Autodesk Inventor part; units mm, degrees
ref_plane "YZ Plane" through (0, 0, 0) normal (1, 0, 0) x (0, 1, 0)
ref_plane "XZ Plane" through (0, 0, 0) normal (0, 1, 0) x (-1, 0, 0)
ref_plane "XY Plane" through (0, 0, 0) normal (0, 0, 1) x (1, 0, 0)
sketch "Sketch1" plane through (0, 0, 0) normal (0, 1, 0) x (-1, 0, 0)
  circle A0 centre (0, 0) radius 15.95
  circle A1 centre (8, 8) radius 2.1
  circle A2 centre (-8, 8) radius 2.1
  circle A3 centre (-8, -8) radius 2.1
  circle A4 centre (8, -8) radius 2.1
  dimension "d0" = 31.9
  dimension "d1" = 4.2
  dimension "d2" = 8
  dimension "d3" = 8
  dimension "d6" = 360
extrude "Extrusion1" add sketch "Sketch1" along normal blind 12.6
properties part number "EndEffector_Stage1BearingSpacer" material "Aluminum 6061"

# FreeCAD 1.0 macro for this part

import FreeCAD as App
import Part
import Sketcher
from FreeCAD import Vector

doc = App.newDocument("Part")
body = doc.addObject("PartDesign::Body", "Body")

sketch1 = body.newObject("Sketcher::SketchObject", "Sketch")
sketch1.AttachmentSupport = (doc.getObject("XZ_Plane"), [""])
sketch1.MapMode = "FlatFace"
sketch1.addGeometry(Part.Circle(Vector(0, 0, 0), Vector(0, 0, 1), 15.9), False)
sketch1.addGeometry(Part.Circle(Vector(8, -8, 0), Vector(0, 0, 1), 2.1), False)
sketch1.addGeometry(Part.Circle(Vector(-8, -8, 0), Vector(0, 0, 1), 2.1), False)
sketch1.addGeometry(Part.Circle(Vector(8, 8, 0), Vector(0, 0, 1), 2.1), False)
sketch1.addGeometry(Part.Circle(Vector(-8, 8, 0), Vector(0, 0, 1), 2.1), False)
sketch1.addConstraint(Sketcher.Constraint("Coincident", 0, 3, -1, 1))
sketch1.addConstraint(Sketcher.Constraint("Equal", 1, 2))
sketch1.addConstraint(Sketcher.Constraint("Equal", 2, 3))
sketch1.addConstraint(Sketcher.Constraint("Equal", 3, 4))
sketch1.addConstraint(Sketcher.Constraint("Symmetric", 2, 3, 3, 3, -1, 1))
sketch1.addConstraint(Sketcher.Constraint("Symmetric", 1, 3, 4, 3, -1, 1))
sketch1.addConstraint(Sketcher.Constraint("Symmetric", 1, 3, 2, 3, -2))
sketch1.addConstraint(Sketcher.Constraint("Diameter", 0, 31.9))
sketch1.addConstraint(Sketcher.Constraint("Diameter", 1, 4.2))
sketch1.addConstraint(Sketcher.Constraint("DistanceX", -1, 1, 1, 3, 8.0))
sketch1.addConstraint(Sketcher.Constraint("DistanceY", 1, 3, -1, 1, 8.0))
pad1 = body.newObject("PartDesign::Pad", "Pad")
pad1.Profile = sketch1
pad1.Length = 12.6
pad1.Reversed = True

doc.recompute()
